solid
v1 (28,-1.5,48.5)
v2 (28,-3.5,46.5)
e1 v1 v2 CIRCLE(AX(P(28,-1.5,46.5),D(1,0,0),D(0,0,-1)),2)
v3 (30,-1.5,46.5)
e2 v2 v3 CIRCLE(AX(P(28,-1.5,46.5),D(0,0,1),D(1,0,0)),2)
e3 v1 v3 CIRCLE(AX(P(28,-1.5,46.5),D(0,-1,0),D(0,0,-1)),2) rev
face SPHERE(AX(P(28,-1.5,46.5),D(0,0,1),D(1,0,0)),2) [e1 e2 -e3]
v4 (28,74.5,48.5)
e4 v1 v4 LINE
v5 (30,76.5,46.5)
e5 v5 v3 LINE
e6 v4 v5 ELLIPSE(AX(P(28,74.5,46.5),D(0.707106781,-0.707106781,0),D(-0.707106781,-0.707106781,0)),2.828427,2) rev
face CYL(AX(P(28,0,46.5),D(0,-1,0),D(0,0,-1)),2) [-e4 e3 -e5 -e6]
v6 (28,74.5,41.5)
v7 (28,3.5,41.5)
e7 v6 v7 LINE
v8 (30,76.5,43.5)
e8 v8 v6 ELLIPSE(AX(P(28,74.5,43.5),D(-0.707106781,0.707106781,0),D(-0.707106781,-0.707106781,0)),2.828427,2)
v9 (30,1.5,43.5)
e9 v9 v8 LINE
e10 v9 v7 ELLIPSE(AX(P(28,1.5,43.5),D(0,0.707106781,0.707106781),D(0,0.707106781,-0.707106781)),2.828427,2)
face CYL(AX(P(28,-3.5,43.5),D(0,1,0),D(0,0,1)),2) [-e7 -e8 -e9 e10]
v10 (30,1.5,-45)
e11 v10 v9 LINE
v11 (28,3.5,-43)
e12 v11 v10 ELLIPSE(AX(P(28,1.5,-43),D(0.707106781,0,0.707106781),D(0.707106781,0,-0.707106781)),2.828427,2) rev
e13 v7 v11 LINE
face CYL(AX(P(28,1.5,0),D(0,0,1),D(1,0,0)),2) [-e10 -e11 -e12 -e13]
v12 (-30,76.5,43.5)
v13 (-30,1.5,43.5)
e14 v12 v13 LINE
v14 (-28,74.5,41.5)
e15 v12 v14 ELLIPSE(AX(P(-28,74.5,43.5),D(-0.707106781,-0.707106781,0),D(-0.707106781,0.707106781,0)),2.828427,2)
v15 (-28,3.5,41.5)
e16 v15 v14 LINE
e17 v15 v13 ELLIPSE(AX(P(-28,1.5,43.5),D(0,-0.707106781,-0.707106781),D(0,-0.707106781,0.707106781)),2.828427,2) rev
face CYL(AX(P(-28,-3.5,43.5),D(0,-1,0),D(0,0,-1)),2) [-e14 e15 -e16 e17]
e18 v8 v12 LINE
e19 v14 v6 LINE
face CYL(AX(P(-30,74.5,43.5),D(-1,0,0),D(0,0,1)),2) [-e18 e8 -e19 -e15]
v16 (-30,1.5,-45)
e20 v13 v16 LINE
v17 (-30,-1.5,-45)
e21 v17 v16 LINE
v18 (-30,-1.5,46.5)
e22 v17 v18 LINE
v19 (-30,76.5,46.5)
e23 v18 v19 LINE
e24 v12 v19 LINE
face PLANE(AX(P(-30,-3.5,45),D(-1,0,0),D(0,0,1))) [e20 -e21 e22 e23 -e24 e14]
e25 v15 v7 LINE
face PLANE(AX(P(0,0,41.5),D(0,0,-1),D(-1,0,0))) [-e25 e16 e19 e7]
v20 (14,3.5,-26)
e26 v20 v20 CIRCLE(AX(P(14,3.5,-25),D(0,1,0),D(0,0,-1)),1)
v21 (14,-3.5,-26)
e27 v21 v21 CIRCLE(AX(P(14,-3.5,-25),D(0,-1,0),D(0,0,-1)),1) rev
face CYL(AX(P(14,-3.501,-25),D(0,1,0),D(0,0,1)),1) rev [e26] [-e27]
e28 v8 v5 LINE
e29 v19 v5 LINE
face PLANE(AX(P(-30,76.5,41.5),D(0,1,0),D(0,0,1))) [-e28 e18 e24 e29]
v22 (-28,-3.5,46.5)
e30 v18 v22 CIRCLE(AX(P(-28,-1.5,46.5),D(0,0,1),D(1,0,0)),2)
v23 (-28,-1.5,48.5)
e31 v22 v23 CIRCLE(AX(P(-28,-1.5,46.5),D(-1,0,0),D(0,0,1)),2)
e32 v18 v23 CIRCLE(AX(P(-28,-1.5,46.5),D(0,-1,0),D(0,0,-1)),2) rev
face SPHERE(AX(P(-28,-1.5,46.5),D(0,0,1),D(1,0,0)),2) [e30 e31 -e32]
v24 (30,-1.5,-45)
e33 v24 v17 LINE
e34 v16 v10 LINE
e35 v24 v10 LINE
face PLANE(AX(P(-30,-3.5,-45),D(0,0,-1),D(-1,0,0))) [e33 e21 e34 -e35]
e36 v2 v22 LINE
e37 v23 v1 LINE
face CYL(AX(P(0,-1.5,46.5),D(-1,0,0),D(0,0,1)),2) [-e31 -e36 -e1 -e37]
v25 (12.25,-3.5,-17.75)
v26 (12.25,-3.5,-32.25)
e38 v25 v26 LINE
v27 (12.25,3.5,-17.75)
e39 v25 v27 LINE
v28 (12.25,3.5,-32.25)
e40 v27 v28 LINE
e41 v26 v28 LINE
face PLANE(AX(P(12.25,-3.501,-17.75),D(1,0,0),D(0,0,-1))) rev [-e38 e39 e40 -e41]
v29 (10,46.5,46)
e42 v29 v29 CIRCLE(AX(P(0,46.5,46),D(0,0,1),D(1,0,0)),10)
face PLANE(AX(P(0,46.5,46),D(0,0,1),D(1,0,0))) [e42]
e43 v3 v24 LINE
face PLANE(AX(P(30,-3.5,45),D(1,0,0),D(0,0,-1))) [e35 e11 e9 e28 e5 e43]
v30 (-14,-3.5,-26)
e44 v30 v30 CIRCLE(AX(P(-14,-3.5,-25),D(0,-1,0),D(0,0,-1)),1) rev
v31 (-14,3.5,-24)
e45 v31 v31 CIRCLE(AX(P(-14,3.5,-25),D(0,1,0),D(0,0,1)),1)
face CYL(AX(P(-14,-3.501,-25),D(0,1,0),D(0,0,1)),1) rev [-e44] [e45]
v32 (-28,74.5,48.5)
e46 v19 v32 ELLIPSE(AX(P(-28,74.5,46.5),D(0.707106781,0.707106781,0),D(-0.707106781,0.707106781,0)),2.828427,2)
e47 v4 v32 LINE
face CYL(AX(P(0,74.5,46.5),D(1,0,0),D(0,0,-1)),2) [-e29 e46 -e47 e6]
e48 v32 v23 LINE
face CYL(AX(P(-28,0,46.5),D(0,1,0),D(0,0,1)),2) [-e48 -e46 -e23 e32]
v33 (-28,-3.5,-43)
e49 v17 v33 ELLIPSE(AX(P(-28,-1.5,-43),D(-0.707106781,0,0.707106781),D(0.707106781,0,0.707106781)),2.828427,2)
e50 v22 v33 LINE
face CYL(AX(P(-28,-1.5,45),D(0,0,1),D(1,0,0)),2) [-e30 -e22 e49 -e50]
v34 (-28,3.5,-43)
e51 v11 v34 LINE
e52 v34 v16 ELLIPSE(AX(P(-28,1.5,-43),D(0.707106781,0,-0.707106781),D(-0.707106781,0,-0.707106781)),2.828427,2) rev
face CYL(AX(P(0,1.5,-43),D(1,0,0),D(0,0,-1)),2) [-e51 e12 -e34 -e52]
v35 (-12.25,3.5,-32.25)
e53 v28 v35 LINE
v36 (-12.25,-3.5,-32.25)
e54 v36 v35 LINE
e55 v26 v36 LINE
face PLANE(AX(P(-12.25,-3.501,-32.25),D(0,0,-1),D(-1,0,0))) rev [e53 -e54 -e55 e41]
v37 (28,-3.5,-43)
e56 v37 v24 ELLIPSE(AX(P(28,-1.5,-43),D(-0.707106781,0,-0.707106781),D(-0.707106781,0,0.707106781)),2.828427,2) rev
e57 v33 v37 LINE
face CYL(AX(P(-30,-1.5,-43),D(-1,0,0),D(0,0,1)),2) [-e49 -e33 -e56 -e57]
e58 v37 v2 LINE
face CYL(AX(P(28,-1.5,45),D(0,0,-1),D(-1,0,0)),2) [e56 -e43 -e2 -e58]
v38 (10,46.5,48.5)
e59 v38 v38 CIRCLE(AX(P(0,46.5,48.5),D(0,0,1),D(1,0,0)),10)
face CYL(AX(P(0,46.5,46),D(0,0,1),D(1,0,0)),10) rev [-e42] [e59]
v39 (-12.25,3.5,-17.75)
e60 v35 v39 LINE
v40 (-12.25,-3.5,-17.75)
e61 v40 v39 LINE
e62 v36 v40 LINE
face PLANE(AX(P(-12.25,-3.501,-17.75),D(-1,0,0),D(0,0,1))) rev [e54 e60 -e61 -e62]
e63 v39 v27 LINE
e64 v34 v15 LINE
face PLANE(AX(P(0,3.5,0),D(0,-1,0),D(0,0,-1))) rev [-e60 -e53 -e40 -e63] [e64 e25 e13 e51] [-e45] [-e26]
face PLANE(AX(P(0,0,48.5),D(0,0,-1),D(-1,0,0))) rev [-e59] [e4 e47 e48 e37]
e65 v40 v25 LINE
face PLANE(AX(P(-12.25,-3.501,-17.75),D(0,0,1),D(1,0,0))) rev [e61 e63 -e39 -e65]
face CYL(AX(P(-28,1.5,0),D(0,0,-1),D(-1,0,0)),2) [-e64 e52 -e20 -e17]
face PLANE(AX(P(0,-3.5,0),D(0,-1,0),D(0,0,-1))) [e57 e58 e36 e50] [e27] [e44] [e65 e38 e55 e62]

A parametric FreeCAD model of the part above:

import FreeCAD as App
import Part
import Sketcher
Q = App.Units.Quantity


def edges_at(feature, points):
    """Names of the edges that pass closest to the given points."""
    edges = feature.Shape.Edges
    near = lambda p: min(range(len(edges)), key=lambda i: edges[i].distToShape(Part.Vertex(*p))[0])
    return sorted({f"Edge{near(p) + 1}" for p in points})

doc = App.newDocument("Part")
body = doc.addObject("PartDesign::Body", "Body")

# Sketch on XZ plane
sketch1 = body.newObject("Sketcher::SketchObject", "Sketch")
sketch1.AttachmentSupport = (doc.getObject("XZ_Plane"), [""])
sketch1.MapMode = "FlatFace"
sketch1.addGeometry([
    Part.LineSegment(App.Vector(-30, -45, 0), App.Vector(-30, 45, 0)),
    Part.LineSegment(App.Vector(-30, 45, 0), App.Vector(30, 45, 0)),
    Part.LineSegment(App.Vector(30, 45, 0), App.Vector(30, -45, 0)),
    Part.LineSegment(App.Vector(30, -45, 0), App.Vector(-30, -45, 0)),
], False)
sketch1.addConstraint([
    Sketcher.Constraint("Coincident", 0, 2, 1, 1),
    Sketcher.Constraint("Coincident", 1, 2, 2, 1),
    Sketcher.Constraint("Coincident", 2, 2, 3, 1),
    Sketcher.Constraint("Coincident", 3, 2, 0, 1),
    Sketcher.Constraint("Vertical", 0),
    Sketcher.Constraint("Horizontal", 1),
    Sketcher.Constraint("Vertical", 2),
    Sketcher.Constraint("Horizontal", 3),
    Sketcher.Constraint("Symmetric", 0, 2, 2, 2, -1, 1),
    Sketcher.Constraint("DistanceX", 1, 1, 1, 2, Q("60 mm")),
    Sketcher.Constraint("DistanceY", 0, 1, 0, 2, Q("90 mm")),
])
pad1 = body.newObject("PartDesign::Pad", "Pad")
pad1.Profile = sketch1
pad1.Type = "TwoLengths"
pad1.Length = 3.5
pad1.Length2 = 3.5
pad1.Reversed = True

# Sketch on XZ plane
sketch2 = body.newObject("Sketcher::SketchObject", "Sketch001")
sketch2.AttachmentSupport = (doc.getObject("XZ_Plane"), [""])
sketch2.MapMode = "FlatFace"
sketch2.AttachmentOffset = App.Placement(App.Vector(0, 0, -3.5), App.Rotation())
sketch2.addGeometry(Part.Circle(App.Vector(-14, -25, 0), App.Vector(0, 0, 1), 1), False)
sketch2.addConstraint([
    Sketcher.Constraint("Diameter", 0, Q("2 mm")),
    Sketcher.Constraint("DistanceX", 0, 3, -1, 1, Q("14 mm")),
    Sketcher.Constraint("DistanceY", 0, 3, -1, 1, Q("25 mm")),
])
pocket1 = body.newObject("PartDesign::Pocket", "Pocket")
pocket1.Profile = sketch2
pocket1.Type = "UpToFirst"
pocket1.Reversed = True

# Sketch on XZ plane
sketch3 = body.newObject("Sketcher::SketchObject", "Sketch002")
sketch3.AttachmentSupport = (doc.getObject("XZ_Plane"), [""])
sketch3.MapMode = "FlatFace"
sketch3.AttachmentOffset = App.Placement(App.Vector(0, 0, -3.5), App.Rotation())
sketch3.addGeometry(Part.Circle(App.Vector(14, -25, 0), App.Vector(0, 0, 1), 1), False)
sketch3.addConstraint([
    Sketcher.Constraint("Diameter", 0, Q("2 mm")),
    Sketcher.Constraint("DistanceX", -1, 1, 0, 3, Q("14 mm")),
    Sketcher.Constraint("DistanceY", 0, 3, -1, 1, Q("25 mm")),
])
pocket2 = body.newObject("PartDesign::Pocket", "Pocket001")
pocket2.Profile = sketch3
pocket2.Type = "UpToFirst"
pocket2.Reversed = True

# Sketch on XZ plane
sketch4 = body.newObject("Sketcher::SketchObject", "Sketch003")
sketch4.AttachmentSupport = (doc.getObject("XZ_Plane"), [""])
sketch4.MapMode = "FlatFace"
sketch4.AttachmentOffset = App.Placement(App.Vector(0, 0, -3.5), App.Rotation())
sketch4.addGeometry([
    Part.LineSegment(App.Vector(-12, -32, 0), App.Vector(-12, -18, 0)),
    Part.LineSegment(App.Vector(-12, -18, 0), App.Vector(12, -18, 0)),
    Part.LineSegment(App.Vector(12, -18, 0), App.Vector(12, -32, 0)),
    Part.LineSegment(App.Vector(12, -32, 0), App.Vector(-12, -32, 0)),
], False)
sketch4.addConstraint([
    Sketcher.Constraint("Coincident", 0, 2, 1, 1),
    Sketcher.Constraint("Coincident", 1, 2, 2, 1),
    Sketcher.Constraint("Coincident", 2, 2, 3, 1),
    Sketcher.Constraint("Coincident", 3, 2, 0, 1),
    Sketcher.Constraint("Vertical", 0),
    Sketcher.Constraint("Horizontal", 1),
    Sketcher.Constraint("Vertical", 2),
    Sketcher.Constraint("Horizontal", 3),
    Sketcher.Constraint("DistanceX", 1, 1, 1, 2, Q("24.5 mm")),
    Sketcher.Constraint("DistanceY", 0, 1, 0, 2, Q("14.5 mm")),
    Sketcher.Constraint("DistanceX", 0, 2, -1, 1, Q("12.25 mm")),
    Sketcher.Constraint("DistanceY", 0, 2, -1, 1, Q("17.75 mm")),
])
pocket3 = body.newObject("PartDesign::Pocket", "Pocket002")
pocket3.Profile = sketch4
pocket3.Type = "UpToFirst"
pocket3.Reversed = True

# Sketch on XY plane
sketch5 = body.newObject("Sketcher::SketchObject", "Sketch004")
sketch5.AttachmentSupport = (doc.getObject("XY_Plane"), [""])
sketch5.MapMode = "FlatFace"
sketch5.AttachmentOffset = App.Placement(App.Vector(0, 0, 45), App.Rotation())
sketch5.addGeometry([
    Part.LineSegment(App.Vector(-30, 76, 0), App.Vector(-30, -4, 0)),
    Part.LineSegment(App.Vector(-30, -4, 0), App.Vector(30, -4, 0)),
    Part.LineSegment(App.Vector(30, -4, 0), App.Vector(30, 76, 0)),
    Part.LineSegment(App.Vector(30, 76, 0), App.Vector(-30, 76, 0)),
], False)
sketch5.addConstraint([
    Sketcher.Constraint("Coincident", 0, 2, 1, 1),
    Sketcher.Constraint("Coincident", 1, 2, 2, 1),
    Sketcher.Constraint("Coincident", 2, 2, 3, 1),
    Sketcher.Constraint("Coincident", 3, 2, 0, 1),
    Sketcher.Constraint("Vertical", 0),
    Sketcher.Constraint("Horizontal", 1),
    Sketcher.Constraint("Vertical", 2),
    Sketcher.Constraint("Horizontal", 3),
    Sketcher.Constraint("DistanceX", 1, 1, 1, 2, Q("60 mm")),
    Sketcher.Constraint("DistanceY", 0, 2, 0, 1, Q("80 mm")),
    Sketcher.Constraint("DistanceX", 0, 2, -1, 1, Q("30 mm")),
    Sketcher.Constraint("DistanceY", 0, 2, -1, 1, Q("3.5 mm")),
])
pad2 = body.newObject("PartDesign::Pad", "Pad001")
pad2.Profile = sketch5
pad2.Type = "TwoLengths"
pad2.Length = 3.5
pad2.Length2 = 3.5
doc.recompute()

fillet = body.newObject("PartDesign::Fillet", "Fillet")
fillet.Base = (pad2, edges_at(pad2, [
    (-30, -3.5, 1.75),
    (0, 3.5, -45),
    (-30, 3.5, -1.75),
    (30, -3.5, 1.75),
    (30, 3.5, -1.75),
    (-30, 40, 41.5),
    (0, 76.5, 41.5),
    (30, 40, 41.5),
    (-30, 36.5, 48.5),
    (0, -3.5, 48.5),
    (30, 36.5, 48.5),
    (0, 76.5, 48.5),
    (0, -3.5, -45),
]))
fillet.Radius = 2

# Sketch on XY plane
sketch6 = body.newObject("Sketcher::SketchObject", "Sketch005")
sketch6.AttachmentSupport = (doc.getObject("XY_Plane"), [""])
sketch6.MapMode = "FlatFace"
sketch6.AttachmentOffset = App.Placement(App.Vector(0, 0, 48.5), App.Rotation())
sketch6.addGeometry(Part.Circle(App.Vector(0, 46, 0), App.Vector(0, 0, 1), 10), False)
sketch6.addConstraint([
    Sketcher.Constraint("PointOnObject", 0, 3, -2),
    Sketcher.Constraint("Diameter", 0, Q("20 mm")),
    Sketcher.Constraint("DistanceY", -1, 1, 0, 3, Q("46.5 mm")),
])
pocket4 = body.newObject("PartDesign::Pocket", "Pocket003")
pocket4.Profile = sketch6
pocket4.Length = 2.5

doc.recompute()
